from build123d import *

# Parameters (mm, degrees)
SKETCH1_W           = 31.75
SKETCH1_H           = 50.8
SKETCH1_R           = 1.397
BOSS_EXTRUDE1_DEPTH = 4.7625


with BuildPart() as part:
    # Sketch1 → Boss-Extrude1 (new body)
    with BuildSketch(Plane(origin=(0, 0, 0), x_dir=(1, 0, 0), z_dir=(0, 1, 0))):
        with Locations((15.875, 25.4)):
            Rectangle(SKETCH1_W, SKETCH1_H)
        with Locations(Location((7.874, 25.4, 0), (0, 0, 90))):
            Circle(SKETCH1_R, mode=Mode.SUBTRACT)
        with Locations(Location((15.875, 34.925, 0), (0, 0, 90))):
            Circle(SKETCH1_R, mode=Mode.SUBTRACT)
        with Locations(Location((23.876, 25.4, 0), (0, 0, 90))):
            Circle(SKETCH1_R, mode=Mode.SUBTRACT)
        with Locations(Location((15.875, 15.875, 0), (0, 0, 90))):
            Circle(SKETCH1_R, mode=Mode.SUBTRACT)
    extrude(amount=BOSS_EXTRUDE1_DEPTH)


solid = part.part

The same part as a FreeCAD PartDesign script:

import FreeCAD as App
import Part
import Sketcher
Q = App.Units.Quantity


def add_polygon(sketch, points):
    """Adds a closed chain of lines whose ends are joined by coincident constraints."""
    first, n = sketch.GeometryCount, len(points)
    for a, b in zip(points, points[1:] + points[:1]):
        sketch.addGeometry(Part.LineSegment(App.Vector(*a, 0), App.Vector(*b, 0)), False)
    for i in range(n):
        sketch.addConstraint(Sketcher.Constraint("Coincident", first + i, 2, first + (i + 1) % n, 1))

doc = App.newDocument("Part")
params = doc.addObject("Spreadsheet::Sheet", "Params")
for row, (alias, value) in enumerate([
    ("sketch1_diameter", "0.11 in"),
    ("sketch1_height", "2 in"),
    ("sketch1_width", "1.25 in"),
    ("pad1_length", "0.1875 in"),
], start=1):
    params.set(f"A{row}", alias)
    params.set(f"B{row}", "=" + value)
    params.setAlias(f"B{row}", alias)

body = doc.addObject("PartDesign::Body", "Body")

sketch1 = body.newObject("Sketcher::SketchObject", "Sketch")
sketch1.AttachmentSupport = (doc.getObject("XZ_Plane"), [""])
sketch1.MapMode = "FlatFace"
add_polygon(sketch1, [(0, -50.8), (0, 0), (31.8, 0), (31.8, -50.8)])
sketch1.addGeometry(Part.Circle(App.Vector(15.9, -15.9, 0), App.Vector(0, 0, 1), 1.4), False)
sketch1.addGeometry(Part.Circle(App.Vector(7.9, -25.4, 0), App.Vector(0, 0, 1), 1.4), False)
sketch1.addGeometry(Part.Circle(App.Vector(23.9, -25.4, 0), App.Vector(0, 0, 1), 1.4), False)
sketch1.addGeometry(Part.Circle(App.Vector(15.9, -34.9, 0), App.Vector(0, 0, 1), 1.4), False)
sketch1.addConstraint([
    Sketcher.Constraint("Vertical", 0),
    Sketcher.Constraint("Horizontal", 1),
    Sketcher.Constraint("Vertical", 2),
    Sketcher.Constraint("Horizontal", 3),
    Sketcher.Constraint("Coincident", 0, 2, -1, 1),
    Sketcher.Constraint("Equal", 4, 5),
    Sketcher.Constraint("Equal", 5, 6),
    Sketcher.Constraint("Equal", 6, 7),
    Sketcher.Constraint("Horizontal", 5, 3, 6, 3),
    Sketcher.Constraint("Vertical", 4, 3, 7, 3),
    Sketcher.Constraint("Diameter", 4, Q("0.11 in")),
    Sketcher.Constraint("DistanceY", 0, 1, 0, 2, Q("2 in")),
    Sketcher.Constraint("DistanceY", 5, 3, -1, 1, Q("1 in")),
    Sketcher.Constraint("DistanceX", 1, 1, 1, 2, Q("1.25 in")),
    Sketcher.Constraint("DistanceX", -1, 1, 5, 3, Q("0.31 in")),
    Sketcher.Constraint("DistanceX", -1, 1, 6, 3, Q("0.94 in")),
    Sketcher.Constraint("DistanceY", 7, 3, 4, 3, Q("0.75 in")),
    Sketcher.Constraint("DistanceX", -1, 1, 4, 3, Q("0.625 in")),
    Sketcher.Constraint("DistanceY", 4, 3, -1, 1, Q("0.625 in")),
])
sketch1.setExpression("Constraints[14]", "Params.sketch1_diameter")
sketch1.setExpression("Constraints[15]", "Params.sketch1_height")
sketch1.setExpression("Constraints[17]", "Params.sketch1_width")
pad1 = body.newObject("PartDesign::Pad", "Pad")
pad1.Profile = sketch1
pad1.setExpression("Length", "Params.pad1_length")
pad1.Reversed = True

doc.recompute()
